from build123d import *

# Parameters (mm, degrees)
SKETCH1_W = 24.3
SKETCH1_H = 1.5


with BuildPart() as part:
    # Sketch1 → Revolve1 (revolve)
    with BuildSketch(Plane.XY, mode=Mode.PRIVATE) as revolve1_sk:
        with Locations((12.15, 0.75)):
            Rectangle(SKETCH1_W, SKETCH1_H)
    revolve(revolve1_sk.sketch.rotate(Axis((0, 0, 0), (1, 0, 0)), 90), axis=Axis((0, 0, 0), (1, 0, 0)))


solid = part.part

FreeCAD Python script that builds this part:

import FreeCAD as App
import Part
import Sketcher
from FreeCAD import Vector

doc = App.newDocument("Part")
body = doc.addObject("PartDesign::Body", "Body")

# Sketch on XY plane
sketch1 = doc.addObject("Sketcher::SketchObject", "Sketch")
body.addObject(sketch1)
sketch1.AttachmentSupport = (doc.XY_Plane, [""])
sketch1.MapMode = "FlatFace"
sketch1.addGeometry(Part.LineSegment(Vector(0, 1.5, 0), Vector(0, 0, 0)), False)
sketch1.addGeometry(Part.LineSegment(Vector(0, 0, 0), Vector(24.3, 0, 0)), False)
sketch1.addGeometry(Part.LineSegment(Vector(24.3, 0, 0), Vector(24.3, 1.5, 0)), False)
sketch1.addGeometry(Part.LineSegment(Vector(24.3, 1.5, 0), Vector(0, 1.5, 0)), False)
sketch1.addConstraint(Sketcher.Constraint("Coincident", 0, 2, 1, 1))
sketch1.addConstraint(Sketcher.Constraint("Coincident", 1, 2, 2, 1))
sketch1.addConstraint(Sketcher.Constraint("Coincident", 2, 2, 3, 1))
sketch1.addConstraint(Sketcher.Constraint("Coincident", 3, 2, 0, 1))
sketch1.addConstraint(Sketcher.Constraint("Vertical", 0))
sketch1.addConstraint(Sketcher.Constraint("Horizontal", 1))
sketch1.addConstraint(Sketcher.Constraint("Vertical", 2))
sketch1.addConstraint(Sketcher.Constraint("Horizontal", 3))
sketch1.addConstraint(Sketcher.Constraint("Coincident", 0, 2, -1, 1))
sketch1.addConstraint(Sketcher.Constraint("DistanceX", 1, 1, 1, 2, 24.3))
sketch1.addConstraint(Sketcher.Constraint("DistanceY", 0, 2, 0, 1, 1.5))
revolution = doc.addObject("PartDesign::Revolution", "Revolution")
body.addObject(revolution)
revolution.Profile = sketch1
revolution.ReferenceAxis = (sketch1, ["H_Axis"])
revolution.Angle = 360

doc.recompute()
